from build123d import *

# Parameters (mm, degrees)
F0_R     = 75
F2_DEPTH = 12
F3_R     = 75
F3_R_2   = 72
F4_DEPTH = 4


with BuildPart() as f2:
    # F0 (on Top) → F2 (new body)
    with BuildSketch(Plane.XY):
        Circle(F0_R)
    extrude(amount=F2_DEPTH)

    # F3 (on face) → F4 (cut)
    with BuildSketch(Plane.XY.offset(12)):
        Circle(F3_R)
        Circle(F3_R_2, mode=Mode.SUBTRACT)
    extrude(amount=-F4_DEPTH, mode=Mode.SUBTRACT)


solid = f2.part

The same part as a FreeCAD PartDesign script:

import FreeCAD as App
import Part
import Sketcher
from FreeCAD import Vector

doc = App.newDocument("Part")
body = doc.addObject("PartDesign::Body", "Body")

# Sketch on XY plane
sketch1 = body.newObject("Sketcher::SketchObject", "Sketch")
sketch1.AttachmentSupport = (doc.getObject("XY_Plane"), [""])
sketch1.MapMode = "FlatFace"
sketch1.addGeometry(Part.Circle(Vector(0, 0, 0), Vector(0, 0, 1), 75), False)
sketch1.addConstraint([
    Sketcher.Constraint("Coincident", 0, 3, -1, 1),
    Sketcher.Constraint("Diameter", 0, 150.0),
])
pad1 = body.newObject("PartDesign::Pad", "Pad")
pad1.Profile = sketch1
pad1.Length = 12

# Sketch on XY plane
sketch2 = body.newObject("Sketcher::SketchObject", "Sketch001")
sketch2.AttachmentSupport = (doc.getObject("XY_Plane"), [""])
sketch2.MapMode = "FlatFace"
sketch2.AttachmentOffset = App.Placement(Vector(0, 0, 12), App.Rotation())
sketch2.addGeometry([
    Part.Circle(Vector(0, 0, 0), Vector(0, 0, 1), 75),
    Part.Circle(Vector(0, 0, 0), Vector(0, 0, 1), 72),
], False)
sketch2.addConstraint([
    Sketcher.Constraint("Coincident", 0, 3, -1, 1),
    Sketcher.Constraint("Coincident", 1, 3, -1, 1),
    Sketcher.Constraint("Diameter", 0, 150.0),
    Sketcher.Constraint("Diameter", 1, 144.0),
])
pocket1 = body.newObject("PartDesign::Pocket", "Pocket")
pocket1.Profile = sketch2
pocket1.Length = 4

doc.recompute()
